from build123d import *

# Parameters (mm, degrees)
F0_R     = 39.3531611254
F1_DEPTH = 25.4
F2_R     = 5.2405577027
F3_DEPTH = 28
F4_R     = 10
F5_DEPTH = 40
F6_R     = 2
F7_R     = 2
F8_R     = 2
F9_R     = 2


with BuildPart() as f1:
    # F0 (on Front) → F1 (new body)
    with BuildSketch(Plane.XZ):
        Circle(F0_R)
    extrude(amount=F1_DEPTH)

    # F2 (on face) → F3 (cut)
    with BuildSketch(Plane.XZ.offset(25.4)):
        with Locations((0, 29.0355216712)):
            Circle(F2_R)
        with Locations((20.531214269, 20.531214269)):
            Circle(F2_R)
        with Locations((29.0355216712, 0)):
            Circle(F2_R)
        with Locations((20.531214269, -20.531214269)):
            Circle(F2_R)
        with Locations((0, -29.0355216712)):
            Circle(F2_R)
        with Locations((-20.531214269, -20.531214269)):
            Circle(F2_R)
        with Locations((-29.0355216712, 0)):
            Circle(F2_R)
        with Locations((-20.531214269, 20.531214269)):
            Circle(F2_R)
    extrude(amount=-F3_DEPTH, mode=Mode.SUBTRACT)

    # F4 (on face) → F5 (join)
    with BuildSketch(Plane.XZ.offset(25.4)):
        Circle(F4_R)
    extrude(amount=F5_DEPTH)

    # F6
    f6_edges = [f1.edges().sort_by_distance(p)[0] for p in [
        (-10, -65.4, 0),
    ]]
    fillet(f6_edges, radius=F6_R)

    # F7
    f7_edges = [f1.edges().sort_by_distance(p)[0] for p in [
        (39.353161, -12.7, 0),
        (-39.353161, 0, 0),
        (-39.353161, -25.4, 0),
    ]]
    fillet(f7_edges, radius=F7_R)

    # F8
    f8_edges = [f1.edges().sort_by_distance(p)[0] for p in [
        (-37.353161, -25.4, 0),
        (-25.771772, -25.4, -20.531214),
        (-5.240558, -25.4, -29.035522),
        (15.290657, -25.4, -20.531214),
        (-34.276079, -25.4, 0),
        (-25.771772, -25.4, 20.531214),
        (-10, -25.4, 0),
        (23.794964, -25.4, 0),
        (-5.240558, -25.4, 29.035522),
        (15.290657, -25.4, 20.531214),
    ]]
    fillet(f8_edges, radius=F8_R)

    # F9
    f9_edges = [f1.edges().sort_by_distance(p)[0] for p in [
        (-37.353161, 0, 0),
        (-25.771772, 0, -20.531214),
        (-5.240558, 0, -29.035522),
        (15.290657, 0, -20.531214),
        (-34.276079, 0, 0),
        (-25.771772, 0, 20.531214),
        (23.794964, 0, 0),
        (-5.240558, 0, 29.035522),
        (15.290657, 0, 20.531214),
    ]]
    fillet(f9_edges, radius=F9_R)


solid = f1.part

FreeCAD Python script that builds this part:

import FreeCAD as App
import Part
import Sketcher
Q = App.Units.Quantity


def edges_at(feature, points):
    """Names of the edges that pass closest to the given points."""
    edges = feature.Shape.Edges
    near = lambda p: min(range(len(edges)), key=lambda i: edges[i].distToShape(Part.Vertex(*p))[0])
    return sorted({f"Edge{near(p) + 1}" for p in points})

doc = App.newDocument("Part")
params = doc.addObject("Spreadsheet::Sheet", "Params")
for row, (alias, value) in enumerate([
    ("pad1_length", "25.4 mm"),
    ("pocket1_length", "28 mm"),
    ("sketch3_diameter", "20 mm"),
    ("pad2_length", "40 mm"),
    ("fillet_radius", "2 mm"),
    ("fillet2_radius", "2 mm"),
    ("fillet3_radius", "2 mm"),
    ("fillet4_radius", "2 mm"),
], start=1):
    params.set(f"A{row}", alias)
    params.set(f"B{row}", "=" + value)
    params.setAlias(f"B{row}", alias)

body = doc.addObject("PartDesign::Body", "Body")

sketch1 = doc.addObject("Sketcher::SketchObject", "Sketch")
body.addObject(sketch1)
sketch1.AttachmentSupport = (doc.XZ_Plane, [""])
sketch1.MapMode = "FlatFace"
sketch1.addGeometry(Part.Circle(App.Vector(0, 0, 0), App.Vector(0, 0, 1), 39), False)
sketch1.addConstraint([
    Sketcher.Constraint("Coincident", 0, 3, -1, 1),
    Sketcher.Constraint("Diameter", 0, Q("78.706322 mm")),
])
pad1 = doc.addObject("PartDesign::Pad", "Pad")
body.addObject(pad1)
pad1.Profile = sketch1
pad1.setExpression("Length", "Params.pad1_length")

sketch2 = doc.addObject("Sketcher::SketchObject", "Sketch001")
body.addObject(sketch2)
sketch2.AttachmentSupport = (doc.XZ_Plane, [""])
sketch2.MapMode = "FlatFace"
sketch2.AttachmentOffset = App.Placement(App.Vector(0, 0, 25.4), App.Rotation())
sketch2.addGeometry([
    Part.Circle(App.Vector(0, 29, 0), App.Vector(0, 0, 1), 5),
    Part.Circle(App.Vector(21, 21, 0), App.Vector(0, 0, 1), 5),
    Part.Circle(App.Vector(29, 0, 0), App.Vector(0, 0, 1), 5),
    Part.Circle(App.Vector(21, -21, 0), App.Vector(0, 0, 1), 5),
    Part.Circle(App.Vector(0, -29, 0), App.Vector(0, 0, 1), 5),
    Part.Circle(App.Vector(-21, -21, 0), App.Vector(0, 0, 1), 5),
    Part.Circle(App.Vector(-29, 0, 0), App.Vector(0, 0, 1), 5),
    Part.Circle(App.Vector(-21, 21, 0), App.Vector(0, 0, 1), 5),
], False)
sketch2.addConstraint([
    Sketcher.Constraint("Equal", 0, 1),
    Sketcher.Constraint("Equal", 1, 2),
    Sketcher.Constraint("Equal", 2, 3),
    Sketcher.Constraint("Equal", 3, 4),
    Sketcher.Constraint("Equal", 4, 5),
    Sketcher.Constraint("Equal", 5, 6),
    Sketcher.Constraint("Equal", 6, 7),
    Sketcher.Constraint("Symmetric", 0, 3, 4, 3, -1, 1),
    Sketcher.Constraint("Symmetric", 1, 3, 5, 3, -1, 1),
    Sketcher.Constraint("Symmetric", 2, 3, 6, 3, -1, 1),
    Sketcher.Constraint("Symmetric", 3, 3, 7, 3, -1, 1),
    Sketcher.Constraint("Symmetric", 3, 3, 5, 3, -2),
    Sketcher.Constraint("PointOnObject", 0, 3, -2),
    Sketcher.Constraint("PointOnObject", 2, 3, -1),
    Sketcher.Constraint("Diameter", 0, Q("10.481115 mm")),
    Sketcher.Constraint("DistanceY", -1, 1, 0, 3, Q("29.035522 mm")),
    Sketcher.Constraint("DistanceX", -1, 1, 2, 3, Q("29.035522 mm")),
    Sketcher.Constraint("DistanceY", 3, 3, 1, 3, Q("41.062429 mm")),
    Sketcher.Constraint("DistanceX", 5, 3, 3, 3, Q("41.062429 mm")),
])
pocket1 = doc.addObject("PartDesign::Pocket", "Pocket")
body.addObject(pocket1)
pocket1.Profile = sketch2
pocket1.setExpression("Length", "Params.pocket1_length")

sketch3 = doc.addObject("Sketcher::SketchObject", "Sketch002")
body.addObject(sketch3)
sketch3.AttachmentSupport = (doc.XZ_Plane, [""])
sketch3.MapMode = "FlatFace"
sketch3.AttachmentOffset = App.Placement(App.Vector(0, 0, 25.4), App.Rotation())
sketch3.addGeometry(Part.Circle(App.Vector(0, 0, 0), App.Vector(0, 0, 1), 10), False)
sketch3.addConstraint([
    Sketcher.Constraint("Coincident", 0, 3, -1, 1),
    Sketcher.Constraint("Diameter", 0, Q("20 mm")),
])
sketch3.setExpression("Constraints[1]", "Params.sketch3_diameter")
pad2 = doc.addObject("PartDesign::Pad", "Pad001")
body.addObject(pad2)
pad2.Profile = sketch3
pad2.setExpression("Length", "Params.pad2_length")
doc.recompute()

fillet = doc.addObject("PartDesign::Fillet", "Fillet")
body.addObject(fillet)
fillet.Base = (pad2, edges_at(pad2, [(-10, -65.4, 0)]))
fillet.setExpression("Radius", "Params.fillet_radius")
doc.recompute()

fillet2 = doc.addObject("PartDesign::Fillet", "Fillet001")
body.addObject(fillet2)
fillet2.Base = (fillet, edges_at(fillet, [(39.353, -12.7, 0), (-39.353, 0, 0), (-39.353, -25.4, 0)]))
fillet2.setExpression("Radius", "Params.fillet2_radius")
doc.recompute()

fillet3 = doc.addObject("PartDesign::Fillet", "Fillet002")
body.addObject(fillet3)
fillet3.Base = (fillet2, edges_at(fillet2, [
    (-37.353, -25.4, 0),
    (-25.772, -25.4, -20.531),
    (-5.241, -25.4, -29.036),
    (15.291, -25.4, -20.531),
    (-34.276, -25.4, 0),
    (-25.772, -25.4, 20.531),
    (-10, -25.4, 0),
    (23.795, -25.4, 0),
    (-5.241, -25.4, 29.036),
    (15.291, -25.4, 20.531),
]))
fillet3.setExpression("Radius", "Params.fillet3_radius")
doc.recompute()

fillet4 = doc.addObject("PartDesign::Fillet", "Fillet003")
body.addObject(fillet4)
fillet4.Base = (fillet3, edges_at(fillet3, [
    (-37.353, 0, 0),
    (-25.772, 0, -20.531),
    (-5.241, 0, -29.036),
    (15.291, 0, -20.531),
    (-34.276, 0, 0),
    (-25.772, 0, 20.531),
    (23.795, 0, 0),
    (-5.241, 0, 29.036),
    (15.291, 0, 20.531),
]))
fillet4.setExpression("Radius", "Params.fillet4_radius")

doc.recompute()
